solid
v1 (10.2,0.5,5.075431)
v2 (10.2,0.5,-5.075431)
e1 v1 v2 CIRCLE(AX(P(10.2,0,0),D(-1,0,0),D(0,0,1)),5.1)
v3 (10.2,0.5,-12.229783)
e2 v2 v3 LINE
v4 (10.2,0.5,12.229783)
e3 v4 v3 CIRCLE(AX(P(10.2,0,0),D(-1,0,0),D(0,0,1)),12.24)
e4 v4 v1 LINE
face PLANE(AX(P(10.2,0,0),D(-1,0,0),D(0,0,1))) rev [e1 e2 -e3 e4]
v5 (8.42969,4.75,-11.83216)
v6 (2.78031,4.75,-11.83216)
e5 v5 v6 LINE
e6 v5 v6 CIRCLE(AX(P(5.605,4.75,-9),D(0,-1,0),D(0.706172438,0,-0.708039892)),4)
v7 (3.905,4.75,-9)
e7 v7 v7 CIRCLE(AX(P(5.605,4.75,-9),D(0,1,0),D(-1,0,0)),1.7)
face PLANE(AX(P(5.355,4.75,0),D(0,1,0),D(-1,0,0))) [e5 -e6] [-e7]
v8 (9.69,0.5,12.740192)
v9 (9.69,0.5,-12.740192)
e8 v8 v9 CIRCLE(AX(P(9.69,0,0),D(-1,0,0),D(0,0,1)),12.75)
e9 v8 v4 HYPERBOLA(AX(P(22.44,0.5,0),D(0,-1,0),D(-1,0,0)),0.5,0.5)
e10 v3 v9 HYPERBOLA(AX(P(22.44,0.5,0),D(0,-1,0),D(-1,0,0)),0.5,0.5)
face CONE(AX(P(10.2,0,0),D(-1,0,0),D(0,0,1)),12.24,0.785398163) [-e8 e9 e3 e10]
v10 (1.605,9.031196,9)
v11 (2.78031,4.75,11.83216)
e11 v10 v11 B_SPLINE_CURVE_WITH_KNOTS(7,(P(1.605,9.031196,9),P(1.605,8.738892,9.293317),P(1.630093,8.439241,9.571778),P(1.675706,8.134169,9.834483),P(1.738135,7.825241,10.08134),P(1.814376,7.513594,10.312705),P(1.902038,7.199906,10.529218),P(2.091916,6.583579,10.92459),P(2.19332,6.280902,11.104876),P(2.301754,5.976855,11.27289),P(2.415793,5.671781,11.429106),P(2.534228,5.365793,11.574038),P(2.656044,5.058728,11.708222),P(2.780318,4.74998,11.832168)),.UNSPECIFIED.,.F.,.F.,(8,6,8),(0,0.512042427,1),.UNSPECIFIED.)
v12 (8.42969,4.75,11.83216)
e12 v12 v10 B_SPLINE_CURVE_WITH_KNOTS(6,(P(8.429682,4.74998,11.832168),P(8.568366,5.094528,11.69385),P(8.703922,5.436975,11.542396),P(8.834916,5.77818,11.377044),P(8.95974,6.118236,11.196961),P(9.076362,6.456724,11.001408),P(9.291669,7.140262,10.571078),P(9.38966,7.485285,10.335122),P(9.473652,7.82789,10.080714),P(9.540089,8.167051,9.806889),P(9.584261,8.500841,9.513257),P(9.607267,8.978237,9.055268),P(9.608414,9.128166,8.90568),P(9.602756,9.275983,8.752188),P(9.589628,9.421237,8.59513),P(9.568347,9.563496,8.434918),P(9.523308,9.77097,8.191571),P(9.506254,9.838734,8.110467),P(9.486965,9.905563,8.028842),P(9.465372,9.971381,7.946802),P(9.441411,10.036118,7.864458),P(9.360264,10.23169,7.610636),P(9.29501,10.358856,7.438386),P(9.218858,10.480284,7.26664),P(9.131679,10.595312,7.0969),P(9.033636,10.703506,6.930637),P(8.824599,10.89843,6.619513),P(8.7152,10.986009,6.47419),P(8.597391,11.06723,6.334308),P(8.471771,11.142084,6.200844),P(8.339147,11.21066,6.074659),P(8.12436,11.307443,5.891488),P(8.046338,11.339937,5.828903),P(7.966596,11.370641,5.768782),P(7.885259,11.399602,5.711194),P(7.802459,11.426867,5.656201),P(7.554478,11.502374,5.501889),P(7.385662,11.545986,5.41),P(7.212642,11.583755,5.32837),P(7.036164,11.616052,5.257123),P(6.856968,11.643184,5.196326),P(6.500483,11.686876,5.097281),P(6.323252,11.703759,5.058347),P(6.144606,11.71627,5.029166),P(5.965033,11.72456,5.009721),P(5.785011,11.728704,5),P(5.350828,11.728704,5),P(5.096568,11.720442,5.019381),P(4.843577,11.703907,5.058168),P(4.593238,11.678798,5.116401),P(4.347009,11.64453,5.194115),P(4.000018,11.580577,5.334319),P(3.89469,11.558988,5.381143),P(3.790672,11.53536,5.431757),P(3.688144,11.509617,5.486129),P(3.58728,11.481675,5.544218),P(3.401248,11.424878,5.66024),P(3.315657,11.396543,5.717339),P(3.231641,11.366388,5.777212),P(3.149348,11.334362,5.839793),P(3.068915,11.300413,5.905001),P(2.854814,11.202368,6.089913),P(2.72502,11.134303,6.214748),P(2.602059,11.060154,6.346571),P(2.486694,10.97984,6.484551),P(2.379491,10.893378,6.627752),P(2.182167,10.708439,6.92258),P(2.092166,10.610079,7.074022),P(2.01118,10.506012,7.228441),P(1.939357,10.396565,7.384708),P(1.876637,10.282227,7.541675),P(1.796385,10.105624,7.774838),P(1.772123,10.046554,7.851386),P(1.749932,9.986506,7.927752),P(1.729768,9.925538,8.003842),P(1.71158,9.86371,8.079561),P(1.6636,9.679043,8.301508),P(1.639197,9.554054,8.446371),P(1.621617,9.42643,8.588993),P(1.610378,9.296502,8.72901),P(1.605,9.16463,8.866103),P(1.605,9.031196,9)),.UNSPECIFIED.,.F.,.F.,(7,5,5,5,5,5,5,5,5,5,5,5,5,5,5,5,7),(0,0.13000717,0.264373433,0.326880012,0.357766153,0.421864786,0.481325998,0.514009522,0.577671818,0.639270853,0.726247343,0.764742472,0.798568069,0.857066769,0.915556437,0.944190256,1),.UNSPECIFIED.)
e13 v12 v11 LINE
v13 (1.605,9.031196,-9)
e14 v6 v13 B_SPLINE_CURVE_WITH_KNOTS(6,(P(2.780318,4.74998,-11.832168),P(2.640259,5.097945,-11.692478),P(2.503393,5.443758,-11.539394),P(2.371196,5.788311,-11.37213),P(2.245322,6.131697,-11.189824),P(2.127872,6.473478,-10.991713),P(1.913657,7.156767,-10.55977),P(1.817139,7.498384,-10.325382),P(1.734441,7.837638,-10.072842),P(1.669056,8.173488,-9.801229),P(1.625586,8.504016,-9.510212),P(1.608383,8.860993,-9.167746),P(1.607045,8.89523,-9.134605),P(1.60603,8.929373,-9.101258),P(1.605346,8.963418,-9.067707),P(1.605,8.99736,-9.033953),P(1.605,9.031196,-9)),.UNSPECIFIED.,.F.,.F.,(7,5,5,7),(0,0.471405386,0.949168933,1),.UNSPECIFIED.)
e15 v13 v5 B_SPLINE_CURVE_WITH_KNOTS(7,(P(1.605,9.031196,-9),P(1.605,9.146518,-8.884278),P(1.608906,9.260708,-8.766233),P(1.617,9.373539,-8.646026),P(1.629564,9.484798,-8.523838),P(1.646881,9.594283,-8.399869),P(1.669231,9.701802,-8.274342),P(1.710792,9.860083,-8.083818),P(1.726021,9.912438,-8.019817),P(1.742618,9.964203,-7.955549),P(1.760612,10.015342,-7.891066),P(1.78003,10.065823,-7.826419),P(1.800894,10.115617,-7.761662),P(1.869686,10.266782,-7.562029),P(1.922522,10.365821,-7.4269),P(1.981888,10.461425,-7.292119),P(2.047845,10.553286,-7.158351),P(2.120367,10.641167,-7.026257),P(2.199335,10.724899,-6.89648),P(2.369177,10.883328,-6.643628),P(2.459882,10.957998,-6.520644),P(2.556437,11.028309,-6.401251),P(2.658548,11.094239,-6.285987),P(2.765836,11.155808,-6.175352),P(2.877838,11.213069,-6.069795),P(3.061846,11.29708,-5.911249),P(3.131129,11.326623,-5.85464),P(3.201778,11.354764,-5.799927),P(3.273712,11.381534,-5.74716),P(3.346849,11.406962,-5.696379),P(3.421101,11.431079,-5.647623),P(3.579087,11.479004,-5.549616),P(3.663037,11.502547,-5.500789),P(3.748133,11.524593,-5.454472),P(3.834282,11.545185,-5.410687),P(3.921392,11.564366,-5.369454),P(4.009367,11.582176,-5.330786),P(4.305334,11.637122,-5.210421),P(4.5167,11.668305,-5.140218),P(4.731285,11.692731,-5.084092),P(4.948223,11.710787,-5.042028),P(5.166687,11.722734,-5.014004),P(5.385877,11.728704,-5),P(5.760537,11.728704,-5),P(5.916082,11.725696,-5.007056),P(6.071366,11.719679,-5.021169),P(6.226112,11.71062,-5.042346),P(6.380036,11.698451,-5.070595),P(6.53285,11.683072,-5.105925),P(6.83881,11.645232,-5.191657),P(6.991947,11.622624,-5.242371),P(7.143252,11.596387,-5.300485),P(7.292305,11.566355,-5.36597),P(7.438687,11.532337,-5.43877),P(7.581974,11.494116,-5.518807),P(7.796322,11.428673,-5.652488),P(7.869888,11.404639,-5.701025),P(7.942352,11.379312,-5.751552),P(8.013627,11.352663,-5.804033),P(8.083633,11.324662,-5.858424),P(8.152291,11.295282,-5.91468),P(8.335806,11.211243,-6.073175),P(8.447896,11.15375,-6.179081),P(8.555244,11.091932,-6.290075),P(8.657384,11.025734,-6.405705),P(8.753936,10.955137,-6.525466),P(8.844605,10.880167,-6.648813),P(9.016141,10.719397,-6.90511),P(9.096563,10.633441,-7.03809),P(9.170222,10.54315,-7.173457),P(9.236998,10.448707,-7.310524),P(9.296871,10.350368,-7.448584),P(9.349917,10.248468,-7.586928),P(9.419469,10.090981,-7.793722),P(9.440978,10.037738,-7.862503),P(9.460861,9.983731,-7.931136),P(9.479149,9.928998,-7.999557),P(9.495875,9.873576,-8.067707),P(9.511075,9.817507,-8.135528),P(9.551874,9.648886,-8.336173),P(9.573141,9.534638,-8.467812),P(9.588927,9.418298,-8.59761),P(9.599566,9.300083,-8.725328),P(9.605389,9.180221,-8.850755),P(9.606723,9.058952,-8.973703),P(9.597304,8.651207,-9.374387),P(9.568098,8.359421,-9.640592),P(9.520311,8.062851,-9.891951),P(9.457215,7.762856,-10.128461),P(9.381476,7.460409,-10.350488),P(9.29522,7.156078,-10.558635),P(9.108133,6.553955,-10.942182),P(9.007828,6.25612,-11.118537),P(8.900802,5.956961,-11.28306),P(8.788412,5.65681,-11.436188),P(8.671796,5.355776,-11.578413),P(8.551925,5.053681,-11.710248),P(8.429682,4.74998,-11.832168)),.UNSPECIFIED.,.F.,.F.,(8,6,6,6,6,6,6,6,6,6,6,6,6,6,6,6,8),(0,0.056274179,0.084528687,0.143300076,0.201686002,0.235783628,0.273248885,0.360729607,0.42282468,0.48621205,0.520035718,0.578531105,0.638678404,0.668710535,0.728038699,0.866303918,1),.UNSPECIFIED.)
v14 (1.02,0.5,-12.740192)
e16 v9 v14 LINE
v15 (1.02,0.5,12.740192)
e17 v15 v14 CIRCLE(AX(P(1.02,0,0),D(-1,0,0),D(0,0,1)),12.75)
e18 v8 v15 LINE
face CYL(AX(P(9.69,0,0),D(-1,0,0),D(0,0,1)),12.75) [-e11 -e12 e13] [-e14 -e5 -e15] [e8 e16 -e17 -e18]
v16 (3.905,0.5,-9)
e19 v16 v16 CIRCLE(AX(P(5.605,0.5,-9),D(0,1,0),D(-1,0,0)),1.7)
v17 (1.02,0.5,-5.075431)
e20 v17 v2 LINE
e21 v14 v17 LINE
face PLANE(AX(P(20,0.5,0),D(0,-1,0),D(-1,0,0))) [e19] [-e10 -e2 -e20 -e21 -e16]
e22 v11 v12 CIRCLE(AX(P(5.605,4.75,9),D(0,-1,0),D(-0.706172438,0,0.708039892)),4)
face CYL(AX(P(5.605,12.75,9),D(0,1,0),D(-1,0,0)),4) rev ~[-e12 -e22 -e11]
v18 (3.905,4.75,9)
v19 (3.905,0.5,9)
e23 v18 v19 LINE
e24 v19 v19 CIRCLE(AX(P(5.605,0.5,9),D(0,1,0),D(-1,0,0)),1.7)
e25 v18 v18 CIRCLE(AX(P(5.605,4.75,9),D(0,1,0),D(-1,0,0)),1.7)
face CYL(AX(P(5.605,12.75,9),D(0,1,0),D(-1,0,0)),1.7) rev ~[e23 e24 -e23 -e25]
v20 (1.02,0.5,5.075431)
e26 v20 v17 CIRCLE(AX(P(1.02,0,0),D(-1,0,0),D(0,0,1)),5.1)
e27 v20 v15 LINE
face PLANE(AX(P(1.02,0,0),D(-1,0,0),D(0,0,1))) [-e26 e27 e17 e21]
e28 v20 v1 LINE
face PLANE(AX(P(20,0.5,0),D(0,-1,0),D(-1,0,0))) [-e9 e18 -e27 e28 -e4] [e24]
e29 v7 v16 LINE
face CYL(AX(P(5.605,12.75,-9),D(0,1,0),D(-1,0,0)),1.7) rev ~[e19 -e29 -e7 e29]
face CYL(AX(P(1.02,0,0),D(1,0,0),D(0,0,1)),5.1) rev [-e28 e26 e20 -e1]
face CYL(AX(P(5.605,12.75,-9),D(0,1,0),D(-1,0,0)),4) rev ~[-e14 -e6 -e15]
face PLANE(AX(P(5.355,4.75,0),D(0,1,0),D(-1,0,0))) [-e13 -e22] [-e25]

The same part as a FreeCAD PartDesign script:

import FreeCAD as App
import Part
import Sketcher
from FreeCAD import Vector
Q = App.Units.Quantity


def add_polygon(sketch, points):
    """Adds a closed chain of lines whose ends are joined by coincident constraints."""
    first, n = sketch.GeometryCount, len(points)
    for a, b in zip(points, points[1:] + points[:1]):
        sketch.addGeometry(Part.LineSegment(App.Vector(*a, 0), App.Vector(*b, 0)), False)
    for i in range(n):
        sketch.addConstraint(Sketcher.Constraint("Coincident", first + i, 2, first + (i + 1) % n, 1))

doc = App.newDocument("Part")
body = doc.addObject("PartDesign::Body", "Body")

# Sketch on XY plane
sketch1 = body.newObject("Sketcher::SketchObject", "Sketch")
sketch1.AttachmentSupport = (doc.getObject("XY_Plane"), [""])
sketch1.MapMode = "FlatFace"
add_polygon(sketch1, [(1.02, 12.75), (1.02, 5.1), (10.2, 5.1), (10.2, 12.24), (9.69, 12.75)])  # lines 0-4
sketch1.addConstraint(Sketcher.Constraint("Vertical", 0))
sketch1.addConstraint(Sketcher.Constraint("Horizontal", 1))
sketch1.addConstraint(Sketcher.Constraint("Vertical", 2))
sketch1.addConstraint(Sketcher.Constraint("Horizontal", 4))
sketch1.addConstraint(Sketcher.Constraint("DistanceY", -1, 1, 0, 2, Q("5.1 mm")))
sketch1.addConstraint(Sketcher.Constraint("Angle", 3, Q("135 deg")))
sketch1.addConstraint(Sketcher.Constraint("DistanceX", 1, 1, 1, 2, Q("9.18 mm")))
sketch1.addConstraint(Sketcher.Constraint("DistanceX", 4, 2, 4, 1, Q("8.67 mm")))
sketch1.addConstraint(Sketcher.Constraint("DistanceY", 0, 2, 0, 1, Q("7.65 mm")))
sketch1.addConstraint(Sketcher.Constraint("DistanceX", -1, 1, 1, 2, Q("10.2 mm")))
revolution = body.newObject("PartDesign::Revolution", "Revolution")
revolution.Profile = sketch1
revolution.ReferenceAxis = (sketch1, ["H_Axis"])
revolution.Angle = 180
revolution.Midplane = True

# Sketch on XY plane
sketch2 = body.newObject("Sketcher::SketchObject", "Sketch001")
sketch2.AttachmentSupport = (doc.getObject("XY_Plane"), [""])
sketch2.MapMode = "FlatFace"
add_polygon(sketch2, [(20, 0.5), (0, 0.5), (0, 0), (20, 0)])  # lines 0-3
sketch2.addConstraint(Sketcher.Constraint("Horizontal", 0))
sketch2.addConstraint(Sketcher.Constraint("Vertical", 1))
sketch2.addConstraint(Sketcher.Constraint("Horizontal", 2))
sketch2.addConstraint(Sketcher.Constraint("Vertical", 3))
sketch2.addConstraint(Sketcher.Constraint("Coincident", 1, 2, -1, 1))
sketch2.addConstraint(Sketcher.Constraint("DistanceX", 0, 2, 0, 1, Q("20 mm")))
sketch2.addConstraint(Sketcher.Constraint("DistanceY", 1, 2, 1, 1, Q("0.5 mm")))
pocket1 = body.newObject("PartDesign::Pocket", "Pocket")
pocket1.Profile = sketch2
pocket1.Length = 50
pocket1.Midplane = True

# Sketch on XZ plane
sketch3 = body.newObject("Sketcher::SketchObject", "Sketch002")
sketch3.AttachmentSupport = (doc.getObject("XZ_Plane"), [""])
sketch3.MapMode = "FlatFace"
sketch3.AttachmentOffset = App.Placement(Vector(0, 0, -12.75), App.Rotation())
sketch3.addGeometry(Part.Circle(Vector(5.605, -9, 0), Vector(0, 0, 1), 1.7), False)
sketch3.addGeometry(Part.Circle(Vector(5.605, 9, 0), Vector(0, 0, 1), 1.7), False)
sketch3.addConstraint(Sketcher.Constraint("Equal", 0, 1))
sketch3.addConstraint(Sketcher.Constraint("Symmetric", 0, 3, 1, 3, -1))
sketch3.addConstraint(Sketcher.Constraint("Diameter", 0, Q("3.4 mm")))
sketch3.addConstraint(Sketcher.Constraint("DistanceY", 0, 3, -1, 1, Q("9 mm")))
sketch3.addConstraint(Sketcher.Constraint("DistanceX", -1, 1, 0, 3, Q("5.605 mm")))
pocket2 = body.newObject("PartDesign::Pocket", "Pocket001")
pocket2.Profile = sketch3
pocket2.Type = "ThroughAll"
pocket2.Reversed = True

# Sketch on XZ plane
sketch4 = body.newObject("Sketcher::SketchObject", "Sketch003")
sketch4.AttachmentSupport = (doc.getObject("XZ_Plane"), [""])
sketch4.MapMode = "FlatFace"
sketch4.AttachmentOffset = App.Placement(Vector(0, 0, -12.75), App.Rotation())
sketch4.addGeometry(Part.Circle(Vector(5.605, -9, 0), Vector(0, 0, 1), 4), False)
sketch4.addGeometry(Part.Circle(Vector(5.605, 9, 0), Vector(0, 0, 1), 4), False)
sketch4.addConstraint(Sketcher.Constraint("Equal", 0, 1))
sketch4.addConstraint(Sketcher.Constraint("Symmetric", 0, 3, 1, 3, -1))
sketch4.addConstraint(Sketcher.Constraint("Diameter", 0, Q("8 mm")))
sketch4.addConstraint(Sketcher.Constraint("DistanceY", 0, 3, -1, 1, Q("9 mm")))
sketch4.addConstraint(Sketcher.Constraint("DistanceX", -1, 1, 0, 3, Q("5.605 mm")))
pocket3 = body.newObject("PartDesign::Pocket", "Pocket002")
pocket3.Profile = sketch4
pocket3.Length = 8
pocket3.Reversed = True

doc.recompute()
